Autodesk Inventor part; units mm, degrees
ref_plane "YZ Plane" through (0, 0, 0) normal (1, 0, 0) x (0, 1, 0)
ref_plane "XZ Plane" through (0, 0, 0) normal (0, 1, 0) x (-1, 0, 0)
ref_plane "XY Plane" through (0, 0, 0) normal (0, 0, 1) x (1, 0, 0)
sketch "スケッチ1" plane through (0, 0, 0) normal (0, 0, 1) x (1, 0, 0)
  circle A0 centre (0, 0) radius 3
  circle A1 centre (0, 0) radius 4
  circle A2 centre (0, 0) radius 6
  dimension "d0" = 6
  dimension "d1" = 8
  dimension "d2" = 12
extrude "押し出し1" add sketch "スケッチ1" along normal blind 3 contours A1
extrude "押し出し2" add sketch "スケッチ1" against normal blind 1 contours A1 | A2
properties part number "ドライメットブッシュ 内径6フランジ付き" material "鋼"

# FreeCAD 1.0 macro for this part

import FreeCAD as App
import Part
import Sketcher
Q = App.Units.Quantity

doc = App.newDocument("Part")
body = doc.addObject("PartDesign::Body", "Body")

# Sketch on XY plane
sketch1 = doc.addObject("Sketcher::SketchObject", "Sketch")
body.addObject(sketch1)
sketch1.AttachmentSupport = (doc.XY_Plane, [""])
sketch1.MapMode = "FlatFace"
sketch1.addGeometry(Part.Circle(App.Vector(0, 0, 0), App.Vector(0, 0, 1), 4), False)
sketch1.addGeometry(Part.Circle(App.Vector(0, 0, 0), App.Vector(0, 0, 1), 3), False)
sketch1.addConstraint(Sketcher.Constraint("Coincident", 0, 3, -1, 1))
sketch1.addConstraint(Sketcher.Constraint("Coincident", 1, 3, -1, 1))
sketch1.addConstraint(Sketcher.Constraint("Diameter", 0, Q("8 mm")))
sketch1.addConstraint(Sketcher.Constraint("Diameter", 1, Q("6 mm")))
pad1 = doc.addObject("PartDesign::Pad", "Pad")
body.addObject(pad1)
pad1.Profile = sketch1
pad1.Length = 3

# Sketch on XY plane
sketch2 = doc.addObject("Sketcher::SketchObject", "Sketch001")
body.addObject(sketch2)
sketch2.AttachmentSupport = (doc.XY_Plane, [""])
sketch2.MapMode = "FlatFace"
sketch2.addGeometry(Part.Circle(App.Vector(0, 0, 0), App.Vector(0, 0, 1), 6), False)
sketch2.addGeometry(Part.Circle(App.Vector(0, 0, 0), App.Vector(0, 0, 1), 3), False)
sketch2.addConstraint(Sketcher.Constraint("Coincident", 0, 3, -1, 1))
sketch2.addConstraint(Sketcher.Constraint("Coincident", 1, 3, -1, 1))
sketch2.addConstraint(Sketcher.Constraint("Diameter", 0, Q("12 mm")))
sketch2.addConstraint(Sketcher.Constraint("Diameter", 1, Q("6 mm")))
pad2 = doc.addObject("PartDesign::Pad", "Pad001")
body.addObject(pad2)
pad2.Profile = sketch2
pad2.Length = 1
pad2.Reversed = True

doc.recompute()
